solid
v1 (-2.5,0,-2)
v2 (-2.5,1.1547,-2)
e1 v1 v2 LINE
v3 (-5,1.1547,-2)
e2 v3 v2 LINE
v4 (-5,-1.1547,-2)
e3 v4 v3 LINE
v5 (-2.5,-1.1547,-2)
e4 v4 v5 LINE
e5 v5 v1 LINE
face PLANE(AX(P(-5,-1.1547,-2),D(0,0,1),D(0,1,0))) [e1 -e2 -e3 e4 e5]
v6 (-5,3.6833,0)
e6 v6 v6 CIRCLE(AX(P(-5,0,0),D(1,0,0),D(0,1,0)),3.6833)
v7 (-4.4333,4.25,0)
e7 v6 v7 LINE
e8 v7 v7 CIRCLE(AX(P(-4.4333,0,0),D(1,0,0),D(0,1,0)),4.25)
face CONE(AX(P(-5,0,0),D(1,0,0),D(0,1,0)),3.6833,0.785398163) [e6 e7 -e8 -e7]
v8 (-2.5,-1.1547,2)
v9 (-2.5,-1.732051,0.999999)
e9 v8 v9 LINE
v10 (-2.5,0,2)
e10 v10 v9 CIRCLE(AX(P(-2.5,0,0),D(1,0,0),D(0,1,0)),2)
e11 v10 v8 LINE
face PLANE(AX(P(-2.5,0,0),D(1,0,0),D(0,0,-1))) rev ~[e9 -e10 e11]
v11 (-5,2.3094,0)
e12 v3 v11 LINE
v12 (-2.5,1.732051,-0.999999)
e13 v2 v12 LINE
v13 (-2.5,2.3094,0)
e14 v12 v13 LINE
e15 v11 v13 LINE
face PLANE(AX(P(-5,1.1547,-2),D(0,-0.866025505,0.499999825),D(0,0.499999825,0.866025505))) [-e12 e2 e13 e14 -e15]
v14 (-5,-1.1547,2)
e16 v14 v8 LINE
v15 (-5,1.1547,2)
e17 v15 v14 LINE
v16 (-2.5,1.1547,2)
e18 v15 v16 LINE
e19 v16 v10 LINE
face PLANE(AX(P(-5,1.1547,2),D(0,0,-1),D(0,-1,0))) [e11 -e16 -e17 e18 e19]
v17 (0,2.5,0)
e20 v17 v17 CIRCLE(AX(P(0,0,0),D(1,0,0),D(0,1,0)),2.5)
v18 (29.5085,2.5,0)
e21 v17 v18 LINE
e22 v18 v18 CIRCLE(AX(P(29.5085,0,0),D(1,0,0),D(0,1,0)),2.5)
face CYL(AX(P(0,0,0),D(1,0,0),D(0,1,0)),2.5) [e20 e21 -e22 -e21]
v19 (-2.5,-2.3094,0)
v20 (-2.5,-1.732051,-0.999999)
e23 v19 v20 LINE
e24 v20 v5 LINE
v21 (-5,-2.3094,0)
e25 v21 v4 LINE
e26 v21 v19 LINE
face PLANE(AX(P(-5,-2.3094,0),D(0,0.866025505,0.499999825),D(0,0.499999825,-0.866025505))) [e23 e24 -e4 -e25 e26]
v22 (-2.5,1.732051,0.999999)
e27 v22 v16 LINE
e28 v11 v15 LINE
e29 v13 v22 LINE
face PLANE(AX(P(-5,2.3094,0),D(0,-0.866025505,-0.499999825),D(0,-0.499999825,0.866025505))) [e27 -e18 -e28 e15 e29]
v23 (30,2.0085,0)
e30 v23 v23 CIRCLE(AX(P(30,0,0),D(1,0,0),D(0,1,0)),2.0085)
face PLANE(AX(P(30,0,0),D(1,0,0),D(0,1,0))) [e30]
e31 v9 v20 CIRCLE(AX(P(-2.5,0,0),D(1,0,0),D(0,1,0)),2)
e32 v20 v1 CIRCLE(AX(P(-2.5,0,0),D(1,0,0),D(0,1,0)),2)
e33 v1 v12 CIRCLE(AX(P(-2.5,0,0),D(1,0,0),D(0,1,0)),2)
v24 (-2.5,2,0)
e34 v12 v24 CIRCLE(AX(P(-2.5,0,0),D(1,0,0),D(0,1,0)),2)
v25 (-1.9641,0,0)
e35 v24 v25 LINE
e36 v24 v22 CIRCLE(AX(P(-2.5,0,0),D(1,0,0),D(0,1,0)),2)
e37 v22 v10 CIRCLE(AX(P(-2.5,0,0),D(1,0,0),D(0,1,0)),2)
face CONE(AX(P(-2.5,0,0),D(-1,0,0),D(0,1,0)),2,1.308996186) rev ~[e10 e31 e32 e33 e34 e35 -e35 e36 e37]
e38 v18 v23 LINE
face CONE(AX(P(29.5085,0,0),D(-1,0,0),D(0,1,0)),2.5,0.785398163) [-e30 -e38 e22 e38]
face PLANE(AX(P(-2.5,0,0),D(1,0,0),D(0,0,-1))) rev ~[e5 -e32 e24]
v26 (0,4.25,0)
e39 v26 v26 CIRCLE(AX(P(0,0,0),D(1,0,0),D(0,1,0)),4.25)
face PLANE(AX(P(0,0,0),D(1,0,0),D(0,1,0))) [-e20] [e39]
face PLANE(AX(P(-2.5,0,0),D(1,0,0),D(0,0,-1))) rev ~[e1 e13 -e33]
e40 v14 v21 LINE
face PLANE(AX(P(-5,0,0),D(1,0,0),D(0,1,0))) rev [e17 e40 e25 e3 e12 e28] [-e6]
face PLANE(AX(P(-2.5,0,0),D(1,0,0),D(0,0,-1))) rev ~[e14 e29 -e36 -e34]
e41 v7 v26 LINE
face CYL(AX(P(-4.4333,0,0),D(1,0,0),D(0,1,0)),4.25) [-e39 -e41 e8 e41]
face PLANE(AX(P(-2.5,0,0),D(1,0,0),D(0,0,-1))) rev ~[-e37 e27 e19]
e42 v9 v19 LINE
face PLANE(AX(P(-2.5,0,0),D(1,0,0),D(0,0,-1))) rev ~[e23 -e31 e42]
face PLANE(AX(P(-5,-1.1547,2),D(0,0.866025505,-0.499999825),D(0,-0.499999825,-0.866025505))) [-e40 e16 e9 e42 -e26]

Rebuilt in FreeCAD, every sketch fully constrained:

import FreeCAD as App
import Part
import Sketcher
from FreeCAD import Vector
Q = App.Units.Quantity


def add_polygon(sketch, points):
    """Adds a closed chain of lines whose ends are joined by coincident constraints."""
    first, n = sketch.GeometryCount, len(points)
    for a, b in zip(points, points[1:] + points[:1]):
        sketch.addGeometry(Part.LineSegment(App.Vector(*a, 0), App.Vector(*b, 0)), False)
    for i in range(n):
        sketch.addConstraint(Sketcher.Constraint("Coincident", first + i, 2, first + (i + 1) % n, 1))

doc = App.newDocument("Part")
params = doc.addObject("Spreadsheet::Sheet", "Params")
for row, (alias, value) in enumerate([
    ("sketch1_width", "35 mm"),
    ("sketch1_height", "1.75 mm"),
    ("revolution_angle", "360 deg"),
    ("sketch2_height", "2 mm"),
    ("sketch2_width", "2.5 mm"),
    ("groove_angle", "360 deg"),
    ("pocket1_length", "2.5 mm"),
], start=1):
    params.set(f"A{row}", alias)
    params.set(f"B{row}", "=" + value)
    params.setAlias(f"B{row}", alias)

body = doc.addObject("PartDesign::Body", "Body")

sketch1 = body.newObject("Sketcher::SketchObject", "Sketch")
sketch1.AttachmentSupport = (doc.getObject("XY_Plane"), [""])
sketch1.MapMode = "FlatFace"
add_polygon(sketch1, [(-5, 0), (30, 0), (30, 2), (29.5, 2.5), (0, 2.5), (0, 4.2), (-4.4, 4.2), (-5, 3.7)])
sketch1.addConstraint(Sketcher.Constraint("Horizontal", 0))
sketch1.addConstraint(Sketcher.Constraint("Vertical", 1))
sketch1.addConstraint(Sketcher.Constraint("Horizontal", 3))
sketch1.addConstraint(Sketcher.Constraint("Vertical", 4))
sketch1.addConstraint(Sketcher.Constraint("Horizontal", 5))
sketch1.addConstraint(Sketcher.Constraint("Vertical", 7))
sketch1.addConstraint(Sketcher.Constraint("PointOnObject", 0, 2, -1))
sketch1.addConstraint(Sketcher.Constraint("PointOnObject", 3, 2, -2))
sketch1.addConstraint(Sketcher.Constraint("Perpendicular", 2, 6))
sketch1.addConstraint(Sketcher.Constraint("DistanceX", 0, 1, 0, 2, Q("35 mm")))
sketch1.addConstraint(Sketcher.Constraint("Angle", 2, Q("135 deg")))
sketch1.addConstraint(Sketcher.Constraint("DistanceX", -1, 1, 0, 2, Q("30 mm")))
sketch1.addConstraint(Sketcher.Constraint("DistanceY", 4, 1, 4, 2, Q("1.75 mm")))
sketch1.addConstraint(Sketcher.Constraint("DistanceY", -1, 1, 2, 2, Q("2.5 mm")))
sketch1.addConstraint(Sketcher.Constraint("Distance", 2, Q("0.695 mm")))
sketch1.addConstraint(Sketcher.Constraint("DistanceX", 5, 2, 5, 1, Q("4.4333 mm")))
sketch1.setExpression("Constraints[17]", "Params.sketch1_width")
sketch1.setExpression("Constraints[20]", "Params.sketch1_height")
revolution = body.newObject("PartDesign::Revolution", "Revolution")
revolution.Profile = sketch1
revolution.ReferenceAxis = (sketch1, ["H_Axis"])
revolution.setExpression("Angle", "Params.revolution_angle")

sketch2 = body.newObject("Sketcher::SketchObject", "Sketch001")
sketch2.AttachmentSupport = (doc.getObject("XY_Plane"), [""])
sketch2.MapMode = "FlatFace"
add_polygon(sketch2, [(-5, 0), (-2, 0), (-2.5, 2), (-5, 2)])
sketch2.addConstraint(Sketcher.Constraint("Horizontal", 0))
sketch2.addConstraint(Sketcher.Constraint("Horizontal", 2))
sketch2.addConstraint(Sketcher.Constraint("Vertical", 3))
sketch2.addConstraint(Sketcher.Constraint("PointOnObject", 0, 2, -1))
sketch2.addConstraint(Sketcher.Constraint("DistanceY", 3, 2, 3, 1, Q("2 mm")))
sketch2.addConstraint(Sketcher.Constraint("Angle", 1, Q("105 deg")))
sketch2.addConstraint(Sketcher.Constraint("DistanceX", 2, 2, 2, 1, Q("2.5 mm")))
sketch2.addConstraint(Sketcher.Constraint("DistanceX", 2, 2, -1, 1, Q("5 mm")))
sketch2.setExpression("Constraints[8]", "Params.sketch2_height")
sketch2.setExpression("Constraints[10]", "Params.sketch2_width")
groove = body.newObject("PartDesign::Groove", "Groove")
groove.Profile = sketch2
groove.ReferenceAxis = (sketch2, ["H_Axis"])
groove.setExpression("Angle", "Params.groove_angle")

sketch3 = body.newObject("Sketcher::SketchObject", "Sketch002")
sketch3.AttachmentSupport = (doc.getObject("YZ_Plane"), [""])
sketch3.MapMode = "FlatFace"
sketch3.AttachmentOffset = App.Placement(Vector(0, 0, -5), App.Rotation())
add_polygon(sketch3, [(2.3, 0), (1.2, 2), (-1.2, 2), (-2.3, 0), (-1.2, -2), (1.2, -2)])
sketch3.addConstraint(Sketcher.Constraint("Horizontal", 1))
sketch3.addConstraint(Sketcher.Constraint("Horizontal", 4))
sketch3.addConstraint(Sketcher.Constraint("Symmetric", 0, 2, 3, 2, -1, 1))
sketch3.addConstraint(Sketcher.Constraint("Symmetric", 2, 2, 5, 2, -1, 1))
sketch3.addConstraint(Sketcher.Constraint("PointOnObject", 2, 2, -1))
sketch3.addConstraint(Sketcher.Constraint("Parallel", 2, 5))
sketch3.addConstraint(Sketcher.Constraint("Vertical", 1, 2, 3, 2))
sketch3.addConstraint(Sketcher.Constraint("Angle", 0, Q("120 deg")))
sketch3.addConstraint(Sketcher.Constraint("DistanceY", -1, 1, 0, 2, Q("2 mm")))
sketch3.addConstraint(Sketcher.Constraint("DistanceX", 1, 2, 1, 1, Q("2.3094 mm")))
pocket1 = body.newObject("PartDesign::Pocket", "Pocket")
pocket1.Profile = sketch3
pocket1.setExpression("Length", "Params.pocket1_length")
pocket1.Reversed = True

doc.recompute()
